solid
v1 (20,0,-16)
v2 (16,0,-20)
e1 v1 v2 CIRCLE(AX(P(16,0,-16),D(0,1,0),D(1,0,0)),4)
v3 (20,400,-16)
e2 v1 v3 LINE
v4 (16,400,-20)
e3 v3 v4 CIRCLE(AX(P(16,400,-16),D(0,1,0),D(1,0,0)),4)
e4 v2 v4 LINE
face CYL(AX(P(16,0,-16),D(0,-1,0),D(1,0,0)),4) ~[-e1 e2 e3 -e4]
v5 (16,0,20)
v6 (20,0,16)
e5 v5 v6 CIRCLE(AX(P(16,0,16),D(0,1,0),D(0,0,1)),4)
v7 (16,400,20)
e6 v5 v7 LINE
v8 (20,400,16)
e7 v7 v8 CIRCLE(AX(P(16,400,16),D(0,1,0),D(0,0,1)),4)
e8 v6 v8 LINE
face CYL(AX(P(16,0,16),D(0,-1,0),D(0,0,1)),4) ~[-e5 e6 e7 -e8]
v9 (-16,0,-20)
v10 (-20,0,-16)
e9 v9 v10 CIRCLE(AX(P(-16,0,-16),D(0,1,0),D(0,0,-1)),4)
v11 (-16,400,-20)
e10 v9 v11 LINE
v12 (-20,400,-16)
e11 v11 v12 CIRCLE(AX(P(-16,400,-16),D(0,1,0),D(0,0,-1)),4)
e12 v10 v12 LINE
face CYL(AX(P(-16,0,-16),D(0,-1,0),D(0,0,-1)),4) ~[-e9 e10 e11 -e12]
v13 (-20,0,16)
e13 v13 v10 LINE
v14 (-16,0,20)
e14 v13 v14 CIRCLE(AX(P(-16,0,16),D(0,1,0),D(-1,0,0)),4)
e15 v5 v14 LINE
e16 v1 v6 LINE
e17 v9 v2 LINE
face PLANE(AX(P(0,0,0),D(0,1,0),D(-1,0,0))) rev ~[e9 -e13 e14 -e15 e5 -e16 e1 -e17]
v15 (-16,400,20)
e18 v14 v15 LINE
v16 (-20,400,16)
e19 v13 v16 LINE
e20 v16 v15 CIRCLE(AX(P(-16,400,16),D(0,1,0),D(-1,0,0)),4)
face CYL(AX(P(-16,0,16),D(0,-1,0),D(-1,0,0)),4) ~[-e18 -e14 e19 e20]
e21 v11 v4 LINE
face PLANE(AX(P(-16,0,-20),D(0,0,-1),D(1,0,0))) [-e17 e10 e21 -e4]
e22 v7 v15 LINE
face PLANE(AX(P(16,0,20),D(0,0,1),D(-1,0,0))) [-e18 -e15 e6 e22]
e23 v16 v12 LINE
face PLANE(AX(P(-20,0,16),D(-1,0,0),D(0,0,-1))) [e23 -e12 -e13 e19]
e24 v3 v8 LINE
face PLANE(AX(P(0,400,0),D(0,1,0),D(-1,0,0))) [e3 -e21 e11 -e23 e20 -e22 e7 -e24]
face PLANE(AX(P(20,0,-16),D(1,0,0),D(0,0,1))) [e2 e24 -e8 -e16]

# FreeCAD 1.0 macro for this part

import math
import FreeCAD as App
import Part
import Sketcher

V = App.Vector

doc = App.newDocument("Part")
params = doc.addObject("Spreadsheet::Sheet", "Params")
for row, (alias, value) in enumerate([
    ("sketch1_radius", "4 mm"),
    ("sketch1_width", "32 mm"),
    ("pad1_length", "400 mm"),
], start=1):
    params.set(f"A{row}", alias)
    params.set(f"B{row}", "=" + value)
    params.setAlias(f"B{row}", alias)

body = doc.addObject("PartDesign::Body", "Body")

# Sketch on XZ plane
sketch1 = body.newObject("Sketcher::SketchObject", "Sketch")
sketch1.AttachmentSupport = (doc.getObject("XZ_Plane"), [""])
sketch1.MapMode = "FlatFace"
sketch1.addGeometry([
    Part.LineSegment(V(16, -20, 0), V(-16, -20, 0)),  # 0
    Part.ArcOfCircle(Part.Circle(V(-16, -16, 0), V(0, 0, 1), 4), math.radians(180), math.radians(270)),  # 1
    Part.LineSegment(V(-20, -16, 0), V(-20, 16, 0)),  # 2
    Part.ArcOfCircle(Part.Circle(V(-16, 16, 0), V(0, 0, 1), 4), math.radians(90), math.radians(180)),  # 3
    Part.LineSegment(V(-16, 20, 0), V(16, 20, 0)),  # 4
    Part.ArcOfCircle(Part.Circle(V(16, 16, 0), V(0, 0, 1), 4), math.radians(0), math.radians(90)),  # 5
    Part.LineSegment(V(20, 16, 0), V(20, -16, 0)),  # 6
    Part.ArcOfCircle(Part.Circle(V(16, -16, 0), V(0, 0, 1), 4), math.radians(-90), math.radians(0)),  # 7
], False)
sketch1.addConstraint([
    Sketcher.Constraint("Tangent", 0, 2, 1, 2),
    Sketcher.Constraint("Tangent", 1, 1, 2, 1),
    Sketcher.Constraint("Tangent", 2, 2, 3, 2),
    Sketcher.Constraint("Tangent", 3, 1, 4, 1),
    Sketcher.Constraint("Tangent", 4, 2, 5, 2),
    Sketcher.Constraint("Tangent", 5, 1, 6, 1),
    Sketcher.Constraint("Tangent", 6, 2, 7, 2),
    Sketcher.Constraint("Tangent", 7, 1, 0, 1),
    Sketcher.Constraint("Horizontal", 0),
    Sketcher.Constraint("Vertical", 2),
    Sketcher.Constraint("Horizontal", 4),
    Sketcher.Constraint("Vertical", 6),
    Sketcher.Constraint("Equal", 1, 3),
    Sketcher.Constraint("Equal", 3, 5),
    Sketcher.Constraint("Equal", 5, 7),
    Sketcher.Constraint("Symmetric", 1, 3, 5, 3, -1, 1),
    Sketcher.Constraint("Equal", 4, 2),
    Sketcher.Constraint("Radius", 1, 4.0),
    Sketcher.Constraint("DistanceX", 0, 2, 0, 1, 32.0),
])
sketch1.setExpression("Constraints[17]", "Params.sketch1_radius")
sketch1.setExpression("Constraints[18]", "Params.sketch1_width")
pad1 = body.newObject("PartDesign::Pad", "Pad")
pad1.Profile = sketch1
pad1.setExpression("Length", "Params.pad1_length")
pad1.Reversed = True

doc.recompute()
